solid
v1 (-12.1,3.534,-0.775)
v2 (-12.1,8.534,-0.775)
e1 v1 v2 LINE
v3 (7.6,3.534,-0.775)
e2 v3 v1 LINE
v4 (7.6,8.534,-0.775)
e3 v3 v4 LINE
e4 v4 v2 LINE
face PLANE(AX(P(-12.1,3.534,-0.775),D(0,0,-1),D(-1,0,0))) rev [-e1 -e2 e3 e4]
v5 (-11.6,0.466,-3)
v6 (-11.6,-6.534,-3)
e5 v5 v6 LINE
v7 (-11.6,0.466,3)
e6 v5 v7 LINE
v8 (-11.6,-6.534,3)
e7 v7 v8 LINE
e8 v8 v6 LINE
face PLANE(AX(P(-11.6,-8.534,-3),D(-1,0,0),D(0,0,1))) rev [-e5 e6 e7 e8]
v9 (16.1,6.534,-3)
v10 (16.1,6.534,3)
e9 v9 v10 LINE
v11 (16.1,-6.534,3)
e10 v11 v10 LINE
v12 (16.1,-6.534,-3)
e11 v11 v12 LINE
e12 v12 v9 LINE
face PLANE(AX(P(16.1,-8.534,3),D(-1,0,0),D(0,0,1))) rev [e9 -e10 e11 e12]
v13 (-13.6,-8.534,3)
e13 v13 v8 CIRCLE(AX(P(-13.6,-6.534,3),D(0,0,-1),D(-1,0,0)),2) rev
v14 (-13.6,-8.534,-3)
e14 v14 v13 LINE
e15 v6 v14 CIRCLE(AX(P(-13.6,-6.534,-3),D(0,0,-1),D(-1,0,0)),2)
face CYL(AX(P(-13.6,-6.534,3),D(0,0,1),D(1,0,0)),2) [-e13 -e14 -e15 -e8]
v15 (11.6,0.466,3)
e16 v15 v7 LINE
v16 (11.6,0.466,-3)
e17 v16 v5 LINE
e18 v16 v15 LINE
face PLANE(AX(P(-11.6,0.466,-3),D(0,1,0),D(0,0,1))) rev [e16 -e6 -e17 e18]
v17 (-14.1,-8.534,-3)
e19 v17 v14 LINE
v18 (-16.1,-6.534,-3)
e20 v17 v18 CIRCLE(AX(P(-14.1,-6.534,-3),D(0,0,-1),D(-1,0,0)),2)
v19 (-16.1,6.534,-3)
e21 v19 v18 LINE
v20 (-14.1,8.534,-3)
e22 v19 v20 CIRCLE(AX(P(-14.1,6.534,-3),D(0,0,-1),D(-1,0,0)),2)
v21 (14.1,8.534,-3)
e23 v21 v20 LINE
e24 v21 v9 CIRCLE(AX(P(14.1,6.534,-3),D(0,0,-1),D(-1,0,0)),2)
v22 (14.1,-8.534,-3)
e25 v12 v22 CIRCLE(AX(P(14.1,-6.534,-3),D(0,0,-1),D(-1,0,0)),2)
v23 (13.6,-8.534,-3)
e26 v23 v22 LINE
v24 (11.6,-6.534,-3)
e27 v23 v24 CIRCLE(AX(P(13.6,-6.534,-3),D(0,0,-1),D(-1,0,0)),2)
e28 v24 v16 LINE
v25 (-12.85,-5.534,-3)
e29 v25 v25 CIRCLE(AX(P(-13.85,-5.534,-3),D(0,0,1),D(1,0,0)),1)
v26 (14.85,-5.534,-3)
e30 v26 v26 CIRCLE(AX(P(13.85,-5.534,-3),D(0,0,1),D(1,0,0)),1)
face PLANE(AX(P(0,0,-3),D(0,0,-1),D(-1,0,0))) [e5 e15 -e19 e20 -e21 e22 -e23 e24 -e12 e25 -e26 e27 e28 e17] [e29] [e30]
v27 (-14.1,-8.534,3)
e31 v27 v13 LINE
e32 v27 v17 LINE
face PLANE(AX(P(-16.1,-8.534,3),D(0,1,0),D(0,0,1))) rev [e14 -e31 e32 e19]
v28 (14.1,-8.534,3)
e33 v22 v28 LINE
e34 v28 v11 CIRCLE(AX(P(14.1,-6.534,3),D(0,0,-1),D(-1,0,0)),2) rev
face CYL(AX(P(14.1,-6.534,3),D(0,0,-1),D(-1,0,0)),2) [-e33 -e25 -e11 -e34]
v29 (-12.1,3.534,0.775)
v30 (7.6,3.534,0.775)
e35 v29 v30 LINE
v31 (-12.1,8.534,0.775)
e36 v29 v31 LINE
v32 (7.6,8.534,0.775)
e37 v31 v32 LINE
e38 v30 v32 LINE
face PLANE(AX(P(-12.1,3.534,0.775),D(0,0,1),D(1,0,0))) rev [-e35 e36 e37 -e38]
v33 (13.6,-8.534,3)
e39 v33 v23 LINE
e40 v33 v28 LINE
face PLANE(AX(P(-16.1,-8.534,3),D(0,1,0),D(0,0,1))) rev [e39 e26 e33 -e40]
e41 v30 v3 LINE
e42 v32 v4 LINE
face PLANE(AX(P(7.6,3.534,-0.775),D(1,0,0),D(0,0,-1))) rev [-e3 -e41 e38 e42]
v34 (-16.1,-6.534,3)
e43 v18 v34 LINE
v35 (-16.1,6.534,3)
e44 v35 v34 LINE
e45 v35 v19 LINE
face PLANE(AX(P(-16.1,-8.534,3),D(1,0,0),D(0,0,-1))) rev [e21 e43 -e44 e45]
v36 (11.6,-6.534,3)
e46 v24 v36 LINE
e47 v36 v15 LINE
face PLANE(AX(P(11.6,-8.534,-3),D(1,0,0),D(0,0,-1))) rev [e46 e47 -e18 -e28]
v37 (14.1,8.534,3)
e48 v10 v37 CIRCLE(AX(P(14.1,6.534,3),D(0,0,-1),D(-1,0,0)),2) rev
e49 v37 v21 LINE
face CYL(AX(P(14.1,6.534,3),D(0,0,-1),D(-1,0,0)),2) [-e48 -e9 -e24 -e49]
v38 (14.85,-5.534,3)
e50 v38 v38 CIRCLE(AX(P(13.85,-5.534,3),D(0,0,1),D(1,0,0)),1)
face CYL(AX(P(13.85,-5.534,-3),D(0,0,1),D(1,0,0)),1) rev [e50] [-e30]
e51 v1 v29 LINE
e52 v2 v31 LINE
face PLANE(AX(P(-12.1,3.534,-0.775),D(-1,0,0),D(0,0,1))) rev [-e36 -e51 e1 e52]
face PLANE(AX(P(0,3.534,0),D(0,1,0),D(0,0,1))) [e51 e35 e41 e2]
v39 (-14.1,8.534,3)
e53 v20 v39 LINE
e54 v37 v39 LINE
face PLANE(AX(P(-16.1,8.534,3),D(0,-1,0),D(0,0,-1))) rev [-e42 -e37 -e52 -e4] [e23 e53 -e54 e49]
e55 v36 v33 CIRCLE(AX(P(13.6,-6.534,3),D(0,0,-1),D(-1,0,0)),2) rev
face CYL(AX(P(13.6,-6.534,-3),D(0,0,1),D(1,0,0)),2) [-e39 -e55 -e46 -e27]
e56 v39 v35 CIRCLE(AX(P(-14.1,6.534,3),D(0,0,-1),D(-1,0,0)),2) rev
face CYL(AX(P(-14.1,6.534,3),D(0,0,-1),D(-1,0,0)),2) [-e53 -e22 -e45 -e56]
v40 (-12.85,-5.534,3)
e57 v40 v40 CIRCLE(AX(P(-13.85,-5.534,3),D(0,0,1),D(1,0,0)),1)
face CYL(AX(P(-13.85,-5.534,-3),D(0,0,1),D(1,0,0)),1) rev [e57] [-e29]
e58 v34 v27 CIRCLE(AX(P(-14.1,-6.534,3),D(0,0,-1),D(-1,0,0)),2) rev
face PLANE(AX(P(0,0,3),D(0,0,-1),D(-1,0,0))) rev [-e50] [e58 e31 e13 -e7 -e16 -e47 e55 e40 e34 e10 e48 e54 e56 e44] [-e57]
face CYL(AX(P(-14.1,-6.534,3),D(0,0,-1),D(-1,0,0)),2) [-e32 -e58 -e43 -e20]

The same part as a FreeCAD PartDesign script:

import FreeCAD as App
import Part
import Sketcher
from FreeCAD import Vector
Q = App.Units.Quantity


def edges_at(feature, points):
    """Names of the edges that pass closest to the given points."""
    edges = feature.Shape.Edges
    near = lambda p: min(range(len(edges)), key=lambda i: edges[i].distToShape(Part.Vertex(*p))[0])
    return sorted({f"Edge{near(p) + 1}" for p in points})


def add_polygon(sketch, points):
    """Adds a closed chain of lines whose ends are joined by coincident constraints."""
    first, n = sketch.GeometryCount, len(points)
    for a, b in zip(points, points[1:] + points[:1]):
        sketch.addGeometry(Part.LineSegment(App.Vector(*a, 0), App.Vector(*b, 0)), False)
    for i in range(n):
        sketch.addConstraint(Sketcher.Constraint("Coincident", first + i, 2, first + (i + 1) % n, 1))

doc = App.newDocument("Part")
params = doc.addObject("Spreadsheet::Sheet", "Params")
for row, (alias, value) in enumerate([
    ("sketch1_width", "32.2 mm"),
    ("pad1_length", "6 mm"),
    ("sketch2_width", "19.7 mm"),
    ("sketch2_height", "1.55 mm"),
    ("pocket1_length", "5 mm"),
    ("sketch3_height", "9 mm"),
    ("sketch3_width", "23.2 mm"),
    ("sketch4_diameter", "2 mm"),
    ("fillet_radius", "2 mm"),
], start=1):
    params.set(f"A{row}", alias)
    params.set(f"B{row}", "=" + value)
    params.setAlias(f"B{row}", alias)

body = doc.addObject("PartDesign::Body", "Body")

# Sketch on XY plane
sketch1 = body.newObject("Sketcher::SketchObject", "Sketch")
sketch1.AttachmentSupport = (doc.getObject("XY_Plane"), [""])
sketch1.MapMode = "FlatFace"
add_polygon(sketch1, [(-16, 9), (-16, -9), (16, -9), (16, 9)])  # lines 0-3
sketch1.addConstraint(Sketcher.Constraint("Vertical", 0))
sketch1.addConstraint(Sketcher.Constraint("Horizontal", 1))
sketch1.addConstraint(Sketcher.Constraint("Vertical", 2))
sketch1.addConstraint(Sketcher.Constraint("Horizontal", 3))
sketch1.addConstraint(Sketcher.Constraint("Symmetric", 0, 2, 2, 2, -1, 1))
sketch1.addConstraint(Sketcher.Constraint("DistanceX", 1, 1, 1, 2, Q("32.2 mm")))
sketch1.addConstraint(Sketcher.Constraint("DistanceY", 0, 2, 0, 1, Q("17.068 mm")))
sketch1.setExpression("Constraints[9]", "Params.sketch1_width")
pad1 = body.newObject("PartDesign::Pad", "Pad")
pad1.Profile = sketch1
pad1.setExpression("Length", "Params.pad1_length")
pad1.Midplane = True

# Sketch on XZ plane
sketch2 = body.newObject("Sketcher::SketchObject", "Sketch001")
sketch2.AttachmentSupport = (doc.getObject("XZ_Plane"), [""])
sketch2.MapMode = "FlatFace"
sketch2.AttachmentOffset = App.Placement(Vector(0, 0, -8.534), App.Rotation())
add_polygon(sketch2, [(-12.1, -0.8), (-12.1, 0.8), (7.6, 0.8), (7.6, -0.8)])  # lines 0-3
sketch2.addConstraint(Sketcher.Constraint("Vertical", 0))
sketch2.addConstraint(Sketcher.Constraint("Horizontal", 1))
sketch2.addConstraint(Sketcher.Constraint("Vertical", 2))
sketch2.addConstraint(Sketcher.Constraint("Horizontal", 3))
sketch2.addConstraint(Sketcher.Constraint("DistanceX", 1, 1, 1, 2, Q("19.7 mm")))
sketch2.addConstraint(Sketcher.Constraint("DistanceY", 0, 1, 0, 2, Q("1.55 mm")))
sketch2.addConstraint(Sketcher.Constraint("DistanceX", 0, 2, -1, 1, Q("12.1 mm")))
sketch2.addConstraint(Sketcher.Constraint("DistanceY", -1, 1, 0, 2, Q("0.775 mm")))
sketch2.setExpression("Constraints[8]", "Params.sketch2_width")
sketch2.setExpression("Constraints[9]", "Params.sketch2_height")
pocket1 = body.newObject("PartDesign::Pocket", "Pocket")
pocket1.Profile = sketch2
pocket1.setExpression("Length", "Params.pocket1_length")
pocket1.Reversed = True

# Sketch on XY plane
sketch3 = body.newObject("Sketcher::SketchObject", "Sketch002")
sketch3.AttachmentSupport = (doc.getObject("XY_Plane"), [""])
sketch3.MapMode = "FlatFace"
sketch3.AttachmentOffset = App.Placement(Vector(0, 0, 3), App.Rotation())
add_polygon(sketch3, [(-12, 0), (-12, -9), (12, -9), (12, 0)])  # lines 0-3
sketch3.addConstraint(Sketcher.Constraint("Vertical", 0))
sketch3.addConstraint(Sketcher.Constraint("Horizontal", 1))
sketch3.addConstraint(Sketcher.Constraint("Vertical", 2))
sketch3.addConstraint(Sketcher.Constraint("Horizontal", 3))
sketch3.addConstraint(Sketcher.Constraint("DistanceY", 0, 2, 0, 1, Q("9 mm")))
sketch3.addConstraint(Sketcher.Constraint("DistanceX", 1, 1, 1, 2, Q("23.2 mm")))
sketch3.addConstraint(Sketcher.Constraint("DistanceX", 0, 2, -1, 1, Q("11.6 mm")))
sketch3.addConstraint(Sketcher.Constraint("DistanceY", 0, 2, -1, 1, Q("8.534 mm")))
sketch3.setExpression("Constraints[8]", "Params.sketch3_height")
sketch3.setExpression("Constraints[9]", "Params.sketch3_width")
pocket2 = body.newObject("PartDesign::Pocket", "Pocket001")
pocket2.Profile = sketch3
pocket2.Type = "ThroughAll"

# Sketch on XY plane
sketch4 = body.newObject("Sketcher::SketchObject", "Sketch003")
sketch4.AttachmentSupport = (doc.getObject("XY_Plane"), [""])
sketch4.MapMode = "FlatFace"
sketch4.AttachmentOffset = App.Placement(Vector(0, 0, 3), App.Rotation())
sketch4.addGeometry(Part.Circle(Vector(-13.8, -5.5, 0), Vector(0, 0, 1), 1), False)
sketch4.addGeometry(Part.Circle(Vector(13.8, -5.5, 0), Vector(0, 0, 1), 1), False)
sketch4.addConstraint(Sketcher.Constraint("Equal", 0, 1))
sketch4.addConstraint(Sketcher.Constraint("Symmetric", 0, 3, 1, 3, -2))
sketch4.addConstraint(Sketcher.Constraint("Diameter", 0, Q("2 mm")))
sketch4.addConstraint(Sketcher.Constraint("DistanceX", 0, 3, 1, 3, Q("27.7 mm")))
sketch4.addConstraint(Sketcher.Constraint("DistanceY", 0, 3, -1, 1, Q("5.534 mm")))
sketch4.setExpression("Constraints[2]", "Params.sketch4_diameter")
pocket3 = body.newObject("PartDesign::Pocket", "Pocket002")
pocket3.Profile = sketch4
pocket3.Type = "ThroughAll"
doc.recompute()

fillet = body.newObject("PartDesign::Fillet", "Fillet")
fillet.Base = (pocket3, edges_at(pocket3, [
    (-11.6, -8.534, 0),
    (11.6, -8.534, 0),
    (16.1, -8.534, 0),
    (-16.1, -8.534, 0),
    (-16.1, 8.534, 0),
    (16.1, 8.534, 0),
]))
fillet.setExpression("Radius", "Params.fillet_radius")

doc.recompute()
